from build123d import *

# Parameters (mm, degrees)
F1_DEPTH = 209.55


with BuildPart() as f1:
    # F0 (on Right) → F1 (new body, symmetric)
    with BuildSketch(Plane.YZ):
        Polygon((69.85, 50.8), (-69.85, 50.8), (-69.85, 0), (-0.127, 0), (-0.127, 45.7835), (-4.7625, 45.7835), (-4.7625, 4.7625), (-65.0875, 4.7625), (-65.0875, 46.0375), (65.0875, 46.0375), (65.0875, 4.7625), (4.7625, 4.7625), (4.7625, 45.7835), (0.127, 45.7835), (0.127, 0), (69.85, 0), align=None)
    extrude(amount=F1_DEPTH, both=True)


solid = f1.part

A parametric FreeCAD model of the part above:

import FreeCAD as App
import Part
import Sketcher

V = App.Vector
Q = App.Units.Quantity


def add_polygon(sketch, points):
    """Adds a closed chain of lines whose ends are joined by coincident constraints."""
    first, n = sketch.GeometryCount, len(points)
    for a, b in zip(points, points[1:] + points[:1]):
        sketch.addGeometry(Part.LineSegment(App.Vector(*a, 0), App.Vector(*b, 0)), False)
    for i in range(n):
        sketch.addConstraint(Sketcher.Constraint("Coincident", first + i, 2, first + (i + 1) % n, 1))

doc = App.newDocument("Part")
body = doc.addObject("PartDesign::Body", "Body")

# Sketch on YZ plane
sketch1 = doc.addObject("Sketcher::SketchObject", "Sketch")
body.addObject(sketch1)
sketch1.AttachmentSupport = (doc.YZ_Plane, [""])
sketch1.MapMode = "FlatFace"
add_polygon(sketch1, [(69.8, 50.8), (-69.8, 50.8), (-69.8, 0), (-0.1, 0), (-0.1, 45.8), (-4.8, 45.8), (-4.8, 4.8), (-65.1, 4.8), (-65.1, 46), (65.1, 46), (65.1, 4.8), (4.8, 4.8), (4.8, 45.8), (0.1, 45.8), (0.1, 0), (69.8, 0)])  # lines 0-15
sketch1.addConstraint(Sketcher.Constraint("Horizontal", 0))
sketch1.addConstraint(Sketcher.Constraint("Vertical", 1))
sketch1.addConstraint(Sketcher.Constraint("Horizontal", 2))
sketch1.addConstraint(Sketcher.Constraint("Vertical", 3))
sketch1.addConstraint(Sketcher.Constraint("Horizontal", 4))
sketch1.addConstraint(Sketcher.Constraint("Vertical", 5))
sketch1.addConstraint(Sketcher.Constraint("Horizontal", 6))
sketch1.addConstraint(Sketcher.Constraint("Vertical", 7))
sketch1.addConstraint(Sketcher.Constraint("Horizontal", 8))
sketch1.addConstraint(Sketcher.Constraint("Vertical", 9))
sketch1.addConstraint(Sketcher.Constraint("Horizontal", 10))
sketch1.addConstraint(Sketcher.Constraint("Vertical", 11))
sketch1.addConstraint(Sketcher.Constraint("Horizontal", 12))
sketch1.addConstraint(Sketcher.Constraint("Vertical", 13))
sketch1.addConstraint(Sketcher.Constraint("Horizontal", 14))
sketch1.addConstraint(Sketcher.Constraint("Vertical", 15))
sketch1.addConstraint(Sketcher.Constraint("Symmetric", 2, 2, 13, 2, -1, 1))
sketch1.addConstraint(Sketcher.Constraint("Symmetric", 6, 2, 9, 2, -2))
sketch1.addConstraint(Sketcher.Constraint("Symmetric", 4, 2, 11, 2, -2))
sketch1.addConstraint(Sketcher.Constraint("Symmetric", 1, 2, 14, 2, -2))
sketch1.addConstraint(Sketcher.Constraint("DistanceY", 1, 2, 1, 1, Q("2 in")))
sketch1.addConstraint(Sketcher.Constraint("DistanceX", 0, 2, 0, 1, Q("5.5 in")))
sketch1.addConstraint(Sketcher.Constraint("DistanceX", 2, 1, 2, 2, Q("2.745 in")))
sketch1.addConstraint(Sketcher.Constraint("DistanceX", 6, 2, 6, 1, Q("2.375 in")))
sketch1.addConstraint(Sketcher.Constraint("DistanceX", 8, 1, 8, 2, Q("5.125 in")))
sketch1.addConstraint(Sketcher.Constraint("DistanceY", 5, 2, 5, 1, Q("1.615 in")))
sketch1.addConstraint(Sketcher.Constraint("DistanceY", 7, 1, 7, 2, Q("1.625 in")))
sketch1.addConstraint(Sketcher.Constraint("DistanceY", 3, 1, 3, 2, Q("1.8025 in")))
pad1 = doc.addObject("PartDesign::Pad", "Pad")
body.addObject(pad1)
pad1.Profile = sketch1
pad1.Length = Q("16.5 in")
pad1.Midplane = True

doc.recompute()
